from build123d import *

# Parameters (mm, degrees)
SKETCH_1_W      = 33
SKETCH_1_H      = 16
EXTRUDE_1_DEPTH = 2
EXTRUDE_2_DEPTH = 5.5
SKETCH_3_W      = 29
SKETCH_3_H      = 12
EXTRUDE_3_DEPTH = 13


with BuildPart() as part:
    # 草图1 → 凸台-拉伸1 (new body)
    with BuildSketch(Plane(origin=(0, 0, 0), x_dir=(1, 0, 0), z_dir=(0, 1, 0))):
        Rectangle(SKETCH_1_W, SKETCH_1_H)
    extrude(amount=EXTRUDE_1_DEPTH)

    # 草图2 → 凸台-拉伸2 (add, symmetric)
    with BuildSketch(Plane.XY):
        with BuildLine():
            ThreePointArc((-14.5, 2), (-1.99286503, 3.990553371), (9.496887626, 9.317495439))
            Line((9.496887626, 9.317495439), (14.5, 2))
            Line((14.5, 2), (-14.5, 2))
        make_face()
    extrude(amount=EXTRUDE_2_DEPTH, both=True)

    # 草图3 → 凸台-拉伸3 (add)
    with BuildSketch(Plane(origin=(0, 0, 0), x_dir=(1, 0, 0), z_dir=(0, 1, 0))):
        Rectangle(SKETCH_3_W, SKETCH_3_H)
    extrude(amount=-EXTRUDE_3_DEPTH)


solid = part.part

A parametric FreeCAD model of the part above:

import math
import FreeCAD as App
import Part
import Sketcher

V = App.Vector
Q = App.Units.Quantity

doc = App.newDocument("Part")
body = doc.addObject("PartDesign::Body", "Body")

# Sketch on XZ plane
sketch1 = body.newObject("Sketcher::SketchObject", "Sketch")
sketch1.AttachmentSupport = (doc.getObject("XZ_Plane"), [""])
sketch1.MapMode = "FlatFace"
sketch1.addGeometry(Part.LineSegment(V(-16.5, -8, 0), V(-16.5, 8, 0)), False)
sketch1.addGeometry(Part.LineSegment(V(-16.5, 8, 0), V(16.5, 8, 0)), False)
sketch1.addGeometry(Part.LineSegment(V(16.5, 8, 0), V(16.5, -8, 0)), False)
sketch1.addGeometry(Part.LineSegment(V(16.5, -8, 0), V(-16.5, -8, 0)), False)
sketch1.addConstraint(Sketcher.Constraint("Coincident", 0, 2, 1, 1))
sketch1.addConstraint(Sketcher.Constraint("Coincident", 1, 2, 2, 1))
sketch1.addConstraint(Sketcher.Constraint("Coincident", 2, 2, 3, 1))
sketch1.addConstraint(Sketcher.Constraint("Coincident", 3, 2, 0, 1))
sketch1.addConstraint(Sketcher.Constraint("Vertical", 0))
sketch1.addConstraint(Sketcher.Constraint("Horizontal", 1))
sketch1.addConstraint(Sketcher.Constraint("Vertical", 2))
sketch1.addConstraint(Sketcher.Constraint("Horizontal", 3))
sketch1.addConstraint(Sketcher.Constraint("Symmetric", 0, 2, 2, 2, -1, 1))
sketch1.addConstraint(Sketcher.Constraint("DistanceX", 1, 1, 1, 2, Q("33 mm")))
sketch1.addConstraint(Sketcher.Constraint("DistanceY", 0, 1, 0, 2, Q("16 mm")))
pad1 = body.newObject("PartDesign::Pad", "Pad")
pad1.Profile = sketch1
pad1.Length = 2
pad1.Reversed = True

# Sketch on XY plane
sketch2 = body.newObject("Sketcher::SketchObject", "Sketch001")
sketch2.AttachmentSupport = (doc.getObject("XY_Plane"), [""])
sketch2.MapMode = "FlatFace"
sketch2.addGeometry(Part.ArcOfCircle(Part.Circle(V(-15.404934, 47.973896, 0), V(0, 0, 1), 45.982801), math.radians(-88.872356), math.radians(-57.211027)), False)
sketch2.addGeometry(Part.LineSegment(V(-14.5, 2, 0), V(14.5, 2, 0)), False)
sketch2.addGeometry(Part.LineSegment(V(14.5, 2, 0), V(9.496888, 9.317495, 0)), False)
sketch2.addConstraint(Sketcher.Constraint("Coincident", 0, 1, 1, 1))
sketch2.addConstraint(Sketcher.Constraint("Coincident", 1, 2, 2, 1))
sketch2.addConstraint(Sketcher.Constraint("Coincident", 2, 2, 0, 2))
sketch2.addConstraint(Sketcher.Constraint("Horizontal", 1))
sketch2.addConstraint(Sketcher.Constraint("DistanceX", 1, 1, 1, 2, Q("29 mm")))
sketch2.addConstraint(Sketcher.Constraint("DistanceY", -1, 1, 0, 1, Q("2 mm")))
sketch2.addConstraint(Sketcher.Constraint("DistanceX", 0, 1, -1, 1, Q("14.5 mm")))
sketch2.addConstraint(Sketcher.Constraint("Radius", 0, Q("45.982801 mm")))
sketch2.addConstraint(Sketcher.Constraint("DistanceY", 2, 2, 0, 3, Q("38.6564 mm")))
sketch2.addConstraint(Sketcher.Constraint("Distance", 2, Q("8.86436 mm")))
pad2 = body.newObject("PartDesign::Pad", "Pad001")
pad2.Profile = sketch2
pad2.Length = 11
pad2.Midplane = True

# Sketch on XZ plane
sketch3 = body.newObject("Sketcher::SketchObject", "Sketch002")
sketch3.AttachmentSupport = (doc.getObject("XZ_Plane"), [""])
sketch3.MapMode = "FlatFace"
sketch3.addGeometry(Part.LineSegment(V(-14.5, -6, 0), V(-14.5, 6, 0)), False)
sketch3.addGeometry(Part.LineSegment(V(-14.5, 6, 0), V(14.5, 6, 0)), False)
sketch3.addGeometry(Part.LineSegment(V(14.5, 6, 0), V(14.5, -6, 0)), False)
sketch3.addGeometry(Part.LineSegment(V(14.5, -6, 0), V(-14.5, -6, 0)), False)
sketch3.addConstraint(Sketcher.Constraint("Coincident", 0, 2, 1, 1))
sketch3.addConstraint(Sketcher.Constraint("Coincident", 1, 2, 2, 1))
sketch3.addConstraint(Sketcher.Constraint("Coincident", 2, 2, 3, 1))
sketch3.addConstraint(Sketcher.Constraint("Coincident", 3, 2, 0, 1))
sketch3.addConstraint(Sketcher.Constraint("Vertical", 0))
sketch3.addConstraint(Sketcher.Constraint("Horizontal", 1))
sketch3.addConstraint(Sketcher.Constraint("Vertical", 2))
sketch3.addConstraint(Sketcher.Constraint("Horizontal", 3))
sketch3.addConstraint(Sketcher.Constraint("Symmetric", 0, 2, 2, 2, -1, 1))
sketch3.addConstraint(Sketcher.Constraint("DistanceX", 1, 1, 1, 2, Q("29 mm")))
sketch3.addConstraint(Sketcher.Constraint("DistanceY", 0, 1, 0, 2, Q("12 mm")))
pad3 = body.newObject("PartDesign::Pad", "Pad002")
pad3.Profile = sketch3
pad3.Length = 13

doc.recompute()
